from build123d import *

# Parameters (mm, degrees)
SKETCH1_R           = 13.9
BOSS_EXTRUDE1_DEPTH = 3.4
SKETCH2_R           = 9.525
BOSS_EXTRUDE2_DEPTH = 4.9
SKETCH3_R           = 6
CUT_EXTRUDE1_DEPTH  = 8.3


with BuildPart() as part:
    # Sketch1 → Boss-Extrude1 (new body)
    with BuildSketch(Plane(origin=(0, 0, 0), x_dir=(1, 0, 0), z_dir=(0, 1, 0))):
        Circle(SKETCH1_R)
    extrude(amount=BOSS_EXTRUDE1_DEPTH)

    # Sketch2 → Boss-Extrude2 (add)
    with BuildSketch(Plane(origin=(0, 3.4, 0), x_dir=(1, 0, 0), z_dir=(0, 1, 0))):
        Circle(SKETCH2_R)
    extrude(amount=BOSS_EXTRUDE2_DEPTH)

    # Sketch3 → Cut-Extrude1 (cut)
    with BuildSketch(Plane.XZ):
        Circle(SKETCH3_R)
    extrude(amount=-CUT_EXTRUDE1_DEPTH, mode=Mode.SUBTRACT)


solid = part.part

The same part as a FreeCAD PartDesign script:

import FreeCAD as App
import Part
import Sketcher
Q = App.Units.Quantity

doc = App.newDocument("Part")
body = doc.addObject("PartDesign::Body", "Body")

sketch1 = doc.addObject("Sketcher::SketchObject", "Sketch")
body.addObject(sketch1)
sketch1.AttachmentSupport = (doc.XZ_Plane, [""])
sketch1.MapMode = "FlatFace"
sketch1.addGeometry(Part.Circle(App.Vector(0, 0, 0), App.Vector(0, 0, 1), 14), False)
sketch1.addConstraint([
    Sketcher.Constraint("Coincident", 0, 3, -1, 1),
    Sketcher.Constraint("Diameter", 0, Q("27.8 mm")),
])
pad1 = doc.addObject("PartDesign::Pad", "Pad")
body.addObject(pad1)
pad1.Profile = sketch1
pad1.Length = 3.4
pad1.Reversed = True

sketch2 = doc.addObject("Sketcher::SketchObject", "Sketch001")
body.addObject(sketch2)
sketch2.AttachmentSupport = (doc.XZ_Plane, [""])
sketch2.MapMode = "FlatFace"
sketch2.AttachmentOffset = App.Placement(App.Vector(0, 0, -3.4), App.Rotation())
sketch2.addGeometry(Part.Circle(App.Vector(0, 0, 0), App.Vector(0, 0, 1), 10), False)
sketch2.addConstraint([
    Sketcher.Constraint("Coincident", 0, 3, -1, 1),
    Sketcher.Constraint("Diameter", 0, Q("19.05 mm")),
])
pad2 = doc.addObject("PartDesign::Pad", "Pad001")
body.addObject(pad2)
pad2.Profile = sketch2
pad2.Length = 4.9
pad2.Reversed = True

sketch3 = doc.addObject("Sketcher::SketchObject", "Sketch002")
body.addObject(sketch3)
sketch3.AttachmentSupport = (doc.XZ_Plane, [""])
sketch3.MapMode = "FlatFace"
sketch3.addGeometry(Part.Circle(App.Vector(0, 0, 0), App.Vector(0, 0, 1), 6), False)
sketch3.addConstraint([
    Sketcher.Constraint("Coincident", 0, 3, -1, 1),
    Sketcher.Constraint("Diameter", 0, Q("12 mm")),
])
pocket1 = doc.addObject("PartDesign::Pocket", "Pocket")
body.addObject(pocket1)
pocket1.Profile = sketch3
pocket1.Length = 8.3

doc.recompute()
